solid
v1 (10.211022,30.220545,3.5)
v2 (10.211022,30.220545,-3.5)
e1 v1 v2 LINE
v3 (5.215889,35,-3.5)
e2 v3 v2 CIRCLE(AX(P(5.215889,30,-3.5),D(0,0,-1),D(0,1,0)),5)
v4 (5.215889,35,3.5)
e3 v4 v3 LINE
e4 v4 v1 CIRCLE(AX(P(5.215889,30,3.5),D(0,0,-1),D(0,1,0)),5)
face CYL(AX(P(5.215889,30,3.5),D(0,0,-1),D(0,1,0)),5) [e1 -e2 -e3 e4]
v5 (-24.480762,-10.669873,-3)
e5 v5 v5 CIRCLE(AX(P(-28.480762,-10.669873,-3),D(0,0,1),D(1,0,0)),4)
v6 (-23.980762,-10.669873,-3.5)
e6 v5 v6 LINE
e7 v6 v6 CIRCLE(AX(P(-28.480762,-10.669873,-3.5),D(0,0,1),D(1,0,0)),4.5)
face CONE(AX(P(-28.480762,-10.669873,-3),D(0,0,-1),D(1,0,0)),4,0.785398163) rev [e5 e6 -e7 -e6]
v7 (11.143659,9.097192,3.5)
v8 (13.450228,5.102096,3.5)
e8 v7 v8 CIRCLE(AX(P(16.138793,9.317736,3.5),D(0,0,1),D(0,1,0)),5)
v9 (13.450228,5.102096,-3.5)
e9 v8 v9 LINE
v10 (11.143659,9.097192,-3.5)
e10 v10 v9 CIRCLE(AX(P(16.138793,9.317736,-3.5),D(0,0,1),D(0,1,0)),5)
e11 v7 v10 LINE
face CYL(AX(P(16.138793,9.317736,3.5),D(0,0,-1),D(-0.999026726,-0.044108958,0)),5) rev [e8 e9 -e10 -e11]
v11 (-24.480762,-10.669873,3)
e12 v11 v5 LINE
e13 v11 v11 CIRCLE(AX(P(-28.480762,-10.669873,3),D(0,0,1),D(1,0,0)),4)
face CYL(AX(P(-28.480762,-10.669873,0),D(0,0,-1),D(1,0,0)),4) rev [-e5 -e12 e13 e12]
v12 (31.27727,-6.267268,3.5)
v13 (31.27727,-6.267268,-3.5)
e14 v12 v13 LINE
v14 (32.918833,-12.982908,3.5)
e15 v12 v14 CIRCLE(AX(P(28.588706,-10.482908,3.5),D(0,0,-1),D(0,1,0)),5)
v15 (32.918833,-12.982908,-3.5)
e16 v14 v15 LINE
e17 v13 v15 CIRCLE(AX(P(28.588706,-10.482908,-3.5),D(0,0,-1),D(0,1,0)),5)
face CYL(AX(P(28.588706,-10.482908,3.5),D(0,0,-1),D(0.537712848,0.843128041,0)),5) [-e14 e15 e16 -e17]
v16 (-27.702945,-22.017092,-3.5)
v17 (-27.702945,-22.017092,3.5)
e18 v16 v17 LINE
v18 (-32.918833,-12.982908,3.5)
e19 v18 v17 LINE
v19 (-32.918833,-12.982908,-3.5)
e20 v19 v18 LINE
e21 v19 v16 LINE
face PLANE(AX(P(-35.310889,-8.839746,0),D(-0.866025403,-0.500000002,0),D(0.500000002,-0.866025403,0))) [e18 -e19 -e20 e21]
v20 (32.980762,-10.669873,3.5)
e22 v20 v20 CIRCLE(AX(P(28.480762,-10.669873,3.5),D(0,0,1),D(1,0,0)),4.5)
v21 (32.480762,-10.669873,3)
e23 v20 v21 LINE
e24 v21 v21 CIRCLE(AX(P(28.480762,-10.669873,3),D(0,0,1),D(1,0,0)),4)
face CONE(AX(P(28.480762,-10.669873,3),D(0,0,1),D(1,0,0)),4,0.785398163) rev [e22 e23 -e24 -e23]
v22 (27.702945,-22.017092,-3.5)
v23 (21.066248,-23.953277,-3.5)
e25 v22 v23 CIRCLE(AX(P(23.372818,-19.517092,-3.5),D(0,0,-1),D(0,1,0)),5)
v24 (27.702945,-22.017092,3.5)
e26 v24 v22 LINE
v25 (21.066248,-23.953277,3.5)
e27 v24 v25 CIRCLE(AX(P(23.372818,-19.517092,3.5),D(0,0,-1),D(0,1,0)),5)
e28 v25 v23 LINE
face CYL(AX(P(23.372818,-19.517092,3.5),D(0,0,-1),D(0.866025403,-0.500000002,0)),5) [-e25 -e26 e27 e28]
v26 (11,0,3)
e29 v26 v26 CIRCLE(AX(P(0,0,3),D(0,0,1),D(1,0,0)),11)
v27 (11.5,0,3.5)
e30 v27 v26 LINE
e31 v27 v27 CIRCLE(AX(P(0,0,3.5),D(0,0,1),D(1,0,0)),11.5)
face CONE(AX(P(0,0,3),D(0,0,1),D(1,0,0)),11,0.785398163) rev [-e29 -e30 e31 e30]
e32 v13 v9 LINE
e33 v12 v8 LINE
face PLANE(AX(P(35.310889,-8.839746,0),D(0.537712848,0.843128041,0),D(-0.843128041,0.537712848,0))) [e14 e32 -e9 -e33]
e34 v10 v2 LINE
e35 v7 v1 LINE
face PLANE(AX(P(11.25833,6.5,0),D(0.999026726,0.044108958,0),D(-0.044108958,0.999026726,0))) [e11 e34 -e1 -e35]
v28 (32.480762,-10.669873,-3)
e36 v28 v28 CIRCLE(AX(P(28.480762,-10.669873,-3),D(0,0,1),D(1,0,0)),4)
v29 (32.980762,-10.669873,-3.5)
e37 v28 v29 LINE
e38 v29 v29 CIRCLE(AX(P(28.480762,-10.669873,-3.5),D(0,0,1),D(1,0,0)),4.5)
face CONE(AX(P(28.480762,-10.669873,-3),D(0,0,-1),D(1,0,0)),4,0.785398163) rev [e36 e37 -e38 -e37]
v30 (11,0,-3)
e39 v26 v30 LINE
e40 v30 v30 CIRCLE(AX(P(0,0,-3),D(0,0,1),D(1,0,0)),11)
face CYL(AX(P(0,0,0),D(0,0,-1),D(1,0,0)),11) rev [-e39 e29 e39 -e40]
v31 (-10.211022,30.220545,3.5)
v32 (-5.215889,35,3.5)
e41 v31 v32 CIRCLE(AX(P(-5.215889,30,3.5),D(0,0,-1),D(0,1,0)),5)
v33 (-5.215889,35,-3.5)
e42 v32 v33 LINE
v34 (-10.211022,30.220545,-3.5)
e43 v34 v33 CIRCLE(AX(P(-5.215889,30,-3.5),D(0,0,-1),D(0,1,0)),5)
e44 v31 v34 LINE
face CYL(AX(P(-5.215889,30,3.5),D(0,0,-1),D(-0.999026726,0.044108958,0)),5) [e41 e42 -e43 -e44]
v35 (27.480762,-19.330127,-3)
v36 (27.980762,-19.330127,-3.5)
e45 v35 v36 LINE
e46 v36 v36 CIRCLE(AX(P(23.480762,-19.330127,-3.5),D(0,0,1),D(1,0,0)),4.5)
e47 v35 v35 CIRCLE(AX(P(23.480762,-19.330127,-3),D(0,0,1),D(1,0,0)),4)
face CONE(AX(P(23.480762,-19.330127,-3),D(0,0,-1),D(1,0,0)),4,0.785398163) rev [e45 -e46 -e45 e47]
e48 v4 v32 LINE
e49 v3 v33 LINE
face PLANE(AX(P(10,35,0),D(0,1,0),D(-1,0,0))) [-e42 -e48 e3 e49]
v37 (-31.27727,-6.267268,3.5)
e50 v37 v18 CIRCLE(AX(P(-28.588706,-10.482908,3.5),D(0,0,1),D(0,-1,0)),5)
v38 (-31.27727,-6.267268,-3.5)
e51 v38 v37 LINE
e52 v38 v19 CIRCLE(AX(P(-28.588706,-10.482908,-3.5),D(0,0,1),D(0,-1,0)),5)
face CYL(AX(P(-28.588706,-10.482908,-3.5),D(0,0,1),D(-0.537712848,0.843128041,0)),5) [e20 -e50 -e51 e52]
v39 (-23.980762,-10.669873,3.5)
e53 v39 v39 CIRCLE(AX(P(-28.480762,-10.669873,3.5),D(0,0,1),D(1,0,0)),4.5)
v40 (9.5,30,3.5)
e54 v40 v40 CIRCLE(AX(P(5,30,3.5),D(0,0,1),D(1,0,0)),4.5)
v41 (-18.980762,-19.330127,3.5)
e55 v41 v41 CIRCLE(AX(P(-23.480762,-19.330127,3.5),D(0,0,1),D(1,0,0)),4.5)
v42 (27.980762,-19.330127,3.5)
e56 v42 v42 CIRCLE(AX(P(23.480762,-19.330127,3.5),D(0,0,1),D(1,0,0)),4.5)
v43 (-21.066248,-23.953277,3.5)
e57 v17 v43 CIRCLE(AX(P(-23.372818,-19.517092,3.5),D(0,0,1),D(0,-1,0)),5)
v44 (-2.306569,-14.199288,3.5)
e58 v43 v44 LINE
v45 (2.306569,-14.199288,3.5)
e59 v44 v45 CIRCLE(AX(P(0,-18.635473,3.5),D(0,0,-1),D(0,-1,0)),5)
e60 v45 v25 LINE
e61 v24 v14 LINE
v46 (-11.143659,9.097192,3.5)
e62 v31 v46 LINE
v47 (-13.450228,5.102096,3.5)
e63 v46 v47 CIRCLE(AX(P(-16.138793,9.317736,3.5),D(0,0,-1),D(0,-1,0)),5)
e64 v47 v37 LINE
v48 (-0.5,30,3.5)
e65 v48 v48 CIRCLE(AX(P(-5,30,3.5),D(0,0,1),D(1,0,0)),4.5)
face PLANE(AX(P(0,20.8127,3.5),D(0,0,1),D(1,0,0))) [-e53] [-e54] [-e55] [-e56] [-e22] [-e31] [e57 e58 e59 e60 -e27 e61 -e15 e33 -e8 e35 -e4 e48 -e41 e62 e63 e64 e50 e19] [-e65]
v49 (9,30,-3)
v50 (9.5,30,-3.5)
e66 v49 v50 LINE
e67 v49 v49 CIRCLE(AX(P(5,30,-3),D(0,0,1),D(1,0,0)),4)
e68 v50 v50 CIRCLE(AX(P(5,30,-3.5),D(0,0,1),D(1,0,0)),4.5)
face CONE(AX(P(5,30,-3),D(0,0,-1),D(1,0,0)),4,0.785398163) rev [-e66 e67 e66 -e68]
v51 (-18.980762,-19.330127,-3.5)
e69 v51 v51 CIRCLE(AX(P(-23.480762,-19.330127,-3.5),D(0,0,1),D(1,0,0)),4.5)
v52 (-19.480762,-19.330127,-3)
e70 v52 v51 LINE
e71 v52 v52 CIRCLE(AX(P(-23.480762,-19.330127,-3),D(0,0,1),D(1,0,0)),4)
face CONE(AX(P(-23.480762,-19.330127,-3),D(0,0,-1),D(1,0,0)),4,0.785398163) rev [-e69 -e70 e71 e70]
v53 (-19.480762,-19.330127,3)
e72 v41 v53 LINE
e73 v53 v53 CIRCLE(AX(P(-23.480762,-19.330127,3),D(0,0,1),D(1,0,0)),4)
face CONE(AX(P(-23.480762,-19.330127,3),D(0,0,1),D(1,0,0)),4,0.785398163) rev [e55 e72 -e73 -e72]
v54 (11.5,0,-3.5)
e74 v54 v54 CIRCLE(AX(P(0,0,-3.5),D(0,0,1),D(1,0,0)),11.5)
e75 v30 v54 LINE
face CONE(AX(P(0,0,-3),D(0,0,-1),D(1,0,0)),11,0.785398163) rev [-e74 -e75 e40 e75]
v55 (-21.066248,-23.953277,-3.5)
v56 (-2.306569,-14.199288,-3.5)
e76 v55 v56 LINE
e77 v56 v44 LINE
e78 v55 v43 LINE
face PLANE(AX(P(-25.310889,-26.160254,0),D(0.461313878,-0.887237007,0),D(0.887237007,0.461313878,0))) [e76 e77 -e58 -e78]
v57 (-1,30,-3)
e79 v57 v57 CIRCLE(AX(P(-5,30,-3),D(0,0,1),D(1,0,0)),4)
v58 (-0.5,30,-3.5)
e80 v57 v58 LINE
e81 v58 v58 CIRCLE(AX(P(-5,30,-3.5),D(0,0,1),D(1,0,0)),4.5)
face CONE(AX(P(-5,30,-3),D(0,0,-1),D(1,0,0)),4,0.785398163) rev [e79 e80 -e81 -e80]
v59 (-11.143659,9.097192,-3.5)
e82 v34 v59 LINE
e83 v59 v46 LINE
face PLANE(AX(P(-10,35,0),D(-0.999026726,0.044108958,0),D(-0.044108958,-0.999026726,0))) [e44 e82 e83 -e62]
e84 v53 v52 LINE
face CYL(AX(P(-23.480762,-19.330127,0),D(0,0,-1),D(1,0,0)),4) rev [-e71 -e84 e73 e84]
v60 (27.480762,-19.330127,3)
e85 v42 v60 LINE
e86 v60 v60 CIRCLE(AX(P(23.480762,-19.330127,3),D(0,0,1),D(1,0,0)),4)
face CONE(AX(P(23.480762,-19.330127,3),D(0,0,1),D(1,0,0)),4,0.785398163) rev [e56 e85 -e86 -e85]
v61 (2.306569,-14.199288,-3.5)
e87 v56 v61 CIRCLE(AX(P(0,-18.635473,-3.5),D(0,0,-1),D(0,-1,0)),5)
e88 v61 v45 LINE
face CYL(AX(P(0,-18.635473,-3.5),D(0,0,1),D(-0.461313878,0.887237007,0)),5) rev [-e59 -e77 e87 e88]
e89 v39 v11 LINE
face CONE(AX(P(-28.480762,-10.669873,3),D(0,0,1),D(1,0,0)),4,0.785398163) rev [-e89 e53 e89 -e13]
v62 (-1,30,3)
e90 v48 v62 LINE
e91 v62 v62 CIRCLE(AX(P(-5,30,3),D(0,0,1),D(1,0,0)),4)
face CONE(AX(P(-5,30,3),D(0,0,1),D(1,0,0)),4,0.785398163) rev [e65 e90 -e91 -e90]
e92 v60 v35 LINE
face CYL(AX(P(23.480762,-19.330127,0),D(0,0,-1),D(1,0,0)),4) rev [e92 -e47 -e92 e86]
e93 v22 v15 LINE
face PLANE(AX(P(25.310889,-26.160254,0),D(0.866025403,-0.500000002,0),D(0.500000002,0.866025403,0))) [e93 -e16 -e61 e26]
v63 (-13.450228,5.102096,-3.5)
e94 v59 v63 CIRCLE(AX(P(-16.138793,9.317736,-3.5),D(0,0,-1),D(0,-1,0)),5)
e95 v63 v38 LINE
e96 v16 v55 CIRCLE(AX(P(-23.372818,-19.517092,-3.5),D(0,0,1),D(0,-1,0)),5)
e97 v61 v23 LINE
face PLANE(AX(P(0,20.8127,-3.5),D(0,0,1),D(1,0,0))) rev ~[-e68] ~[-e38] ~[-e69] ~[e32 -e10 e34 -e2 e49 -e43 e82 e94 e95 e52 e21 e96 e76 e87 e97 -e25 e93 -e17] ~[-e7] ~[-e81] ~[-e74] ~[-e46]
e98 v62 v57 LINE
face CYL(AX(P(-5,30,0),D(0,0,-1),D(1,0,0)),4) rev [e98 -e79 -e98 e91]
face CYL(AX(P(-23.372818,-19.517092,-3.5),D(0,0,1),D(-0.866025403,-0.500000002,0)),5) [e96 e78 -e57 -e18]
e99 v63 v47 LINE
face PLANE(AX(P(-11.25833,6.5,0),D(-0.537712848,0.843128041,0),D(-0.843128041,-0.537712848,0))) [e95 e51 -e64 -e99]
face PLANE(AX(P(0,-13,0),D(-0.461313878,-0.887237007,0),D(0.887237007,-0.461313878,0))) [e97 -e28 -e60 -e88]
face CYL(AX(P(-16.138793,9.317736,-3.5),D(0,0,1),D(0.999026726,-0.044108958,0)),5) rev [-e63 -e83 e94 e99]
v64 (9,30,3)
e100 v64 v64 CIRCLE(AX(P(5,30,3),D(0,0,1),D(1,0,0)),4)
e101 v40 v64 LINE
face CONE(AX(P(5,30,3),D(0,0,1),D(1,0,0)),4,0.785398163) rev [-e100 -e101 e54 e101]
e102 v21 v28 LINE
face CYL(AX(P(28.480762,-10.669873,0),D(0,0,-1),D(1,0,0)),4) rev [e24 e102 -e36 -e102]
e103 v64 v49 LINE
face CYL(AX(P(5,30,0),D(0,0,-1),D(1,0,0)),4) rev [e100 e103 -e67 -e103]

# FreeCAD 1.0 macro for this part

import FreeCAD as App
import Part
import Sketcher

V = App.Vector
Q = App.Units.Quantity


def edges_at(feature, points):
    """Names of the edges that pass closest to the given points."""
    edges = feature.Shape.Edges
    near = lambda p: min(range(len(edges)), key=lambda i: edges[i].distToShape(Part.Vertex(*p))[0])
    return sorted({f"Edge{near(p) + 1}" for p in points})

doc = App.newDocument("Part")
body = doc.addObject("PartDesign::Body", "Body")

sketch1 = doc.addObject("Sketcher::SketchObject", "Sketch")
body.addObject(sketch1)
sketch1.AttachmentSupport = (doc.XY_Plane, [""])
sketch1.MapMode = "FlatFace"
sketch1.addGeometry(Part.LineSegment(V(-10, 35, 0), V(-11.3, 6.5, 0)), False)
sketch1.addGeometry(Part.LineSegment(V(-11.3, 6.5, 0), V(-35.3, -8.8, 0)), False)
sketch1.addGeometry(Part.LineSegment(V(-35.3, -8.8, 0), V(-25.3, -26.2, 0)), False)
sketch1.addGeometry(Part.LineSegment(V(-25.3, -26.2, 0), V(0, -13, 0)), False)
sketch1.addGeometry(Part.LineSegment(V(0, -13, 0), V(25.3, -26.2, 0)), False)
sketch1.addGeometry(Part.LineSegment(V(25.3, -26.2, 0), V(35.3, -8.8, 0)), False)
sketch1.addGeometry(Part.LineSegment(V(35.3, -8.8, 0), V(11.3, 6.5, 0)), False)
sketch1.addGeometry(Part.LineSegment(V(11.3, 6.5, 0), V(10, 35, 0)), False)
sketch1.addGeometry(Part.LineSegment(V(10, 35, 0), V(-10, 35, 0)), False)
sketch1.addGeometry(Part.Circle(V(-23.5, -19.3, 0), V(0, 0, 1), 4), False)
sketch1.addGeometry(Part.Circle(V(-28.5, -10.7, 0), V(0, 0, 1), 4), False)
sketch1.addGeometry(Part.Circle(V(23.5, -19.3, 0), V(0, 0, 1), 4), False)
sketch1.addGeometry(Part.Circle(V(28.5, -10.7, 0), V(0, 0, 1), 4), False)
sketch1.addGeometry(Part.Circle(V(0, 0, 0), V(0, 0, 1), 11), False)
sketch1.addGeometry(Part.Circle(V(-5, 30, 0), V(0, 0, 1), 4), False)
sketch1.addGeometry(Part.Circle(V(5, 30, 0), V(0, 0, 1), 4), False)
sketch1.addConstraint(Sketcher.Constraint("Coincident", 0, 2, 1, 1))
sketch1.addConstraint(Sketcher.Constraint("Coincident", 1, 2, 2, 1))
sketch1.addConstraint(Sketcher.Constraint("Coincident", 2, 2, 3, 1))
sketch1.addConstraint(Sketcher.Constraint("Coincident", 3, 2, 4, 1))
sketch1.addConstraint(Sketcher.Constraint("Coincident", 4, 2, 5, 1))
sketch1.addConstraint(Sketcher.Constraint("Coincident", 5, 2, 6, 1))
sketch1.addConstraint(Sketcher.Constraint("Coincident", 6, 2, 7, 1))
sketch1.addConstraint(Sketcher.Constraint("Coincident", 7, 2, 8, 1))
sketch1.addConstraint(Sketcher.Constraint("Coincident", 8, 2, 0, 1))
sketch1.addConstraint(Sketcher.Constraint("Horizontal", 8))
sketch1.addConstraint(Sketcher.Constraint("Coincident", 13, 3, -1, 1))
sketch1.addConstraint(Sketcher.Constraint("Equal", 9, 10))
sketch1.addConstraint(Sketcher.Constraint("Equal", 10, 11))
sketch1.addConstraint(Sketcher.Constraint("Equal", 11, 12))
sketch1.addConstraint(Sketcher.Constraint("Equal", 12, 14))
sketch1.addConstraint(Sketcher.Constraint("Equal", 14, 15))
sketch1.addConstraint(Sketcher.Constraint("Symmetric", 9, 3, 11, 3, -2))
sketch1.addConstraint(Sketcher.Constraint("Symmetric", 10, 3, 12, 3, -2))
sketch1.addConstraint(Sketcher.Constraint("Symmetric", 14, 3, 15, 3, -2))
sketch1.addConstraint(Sketcher.Constraint("Symmetric", 2, 2, 4, 2, -2))
sketch1.addConstraint(Sketcher.Constraint("Symmetric", 1, 2, 5, 2, -2))
sketch1.addConstraint(Sketcher.Constraint("Symmetric", 0, 2, 6, 2, -2))
sketch1.addConstraint(Sketcher.Constraint("PointOnObject", 3, 2, -2))
sketch1.addConstraint(Sketcher.Constraint("Equal", 0, 1))
sketch1.addConstraint(Sketcher.Constraint("Equal", 1, 3))
sketch1.addConstraint(Sketcher.Constraint("Equal", 6, 7))
sketch1.addConstraint(Sketcher.Constraint("Diameter", 9, 8.0))
sketch1.addConstraint(Sketcher.Constraint("Diameter", 13, 22.0))
sketch1.addConstraint(Sketcher.Constraint("DistanceX", 8, 2, 8, 1, 20.0))
sketch1.addConstraint(Sketcher.Constraint("Angle", 2, Q("-60 deg")))
sketch1.addConstraint(Sketcher.Constraint("Distance", 2, 20.0))
sketch1.addConstraint(Sketcher.Constraint("DistanceX", 14, 3, -1, 1, 5.0))
sketch1.addConstraint(Sketcher.Constraint("DistanceY", -1, 1, 14, 3, 30.0))
sketch1.addConstraint(Sketcher.Constraint("DistanceY", 3, 2, -1, 1, 13.0))
sketch1.addConstraint(Sketcher.Constraint("DistanceY", -1, 1, 7, 2, 35.0))
sketch1.addConstraint(Sketcher.Constraint("DistanceX", 10, 3, 9, 3, 5.0))
sketch1.addConstraint(Sketcher.Constraint("DistanceY", -1, 1, 0, 2, 6.5))
sketch1.addConstraint(Sketcher.Constraint("DistanceX", 9, 3, -1, 1, 23.480762))
sketch1.addConstraint(Sketcher.Constraint("DistanceX", 0, 2, -1, 1, 11.25833))
sketch1.addConstraint(Sketcher.Constraint("DistanceY", 9, 3, 1, 2, 10.490381))
sketch1.addConstraint(Sketcher.Constraint("DistanceY", 2, 2, 10, 3, 15.490381))
pad1 = doc.addObject("PartDesign::Pad", "Pad")
body.addObject(pad1)
pad1.Profile = sketch1
pad1.Length = 7
pad1.Midplane = True
doc.recompute()

chamfer = doc.addObject("PartDesign::Chamfer", "Chamfer")
body.addObject(chamfer)
chamfer.Base = (pad1, edges_at(pad1, [
    (-9, 30, 3.5),
    (1, 30, 3.5),
    (-11, 0, 3.5),
    (-32.481, -10.67, 3.5),
    (-27.481, -19.33, 3.5),
    (24.481, -10.67, 3.5),
    (19.481, -19.33, 3.5),
    (-11, 0, -3.5),
    (-27.481, -19.33, -3.5),
    (-32.481, -10.67, -3.5),
    (19.481, -19.33, -3.5),
    (24.481, -10.67, -3.5),
    (1, 30, -3.5),
    (-9, 30, -3.5),
]))
chamfer.Size = 0.5
doc.recompute()

fillet = doc.addObject("PartDesign::Fillet", "Fillet")
body.addObject(fillet)
fillet.Base = (chamfer, edges_at(chamfer, [
    (-25.311, -26.16, 0),
    (-35.311, -8.84, 0),
    (25.311, -26.16, 0),
    (35.311, -8.84, 0),
    (10, 35, 0),
    (-10, 35, 0),
    (-11.258, 6.5, 0),
    (11.258, 6.5, 0),
    (0, -13, 0),
]))
fillet.Radius = 5

doc.recompute()
